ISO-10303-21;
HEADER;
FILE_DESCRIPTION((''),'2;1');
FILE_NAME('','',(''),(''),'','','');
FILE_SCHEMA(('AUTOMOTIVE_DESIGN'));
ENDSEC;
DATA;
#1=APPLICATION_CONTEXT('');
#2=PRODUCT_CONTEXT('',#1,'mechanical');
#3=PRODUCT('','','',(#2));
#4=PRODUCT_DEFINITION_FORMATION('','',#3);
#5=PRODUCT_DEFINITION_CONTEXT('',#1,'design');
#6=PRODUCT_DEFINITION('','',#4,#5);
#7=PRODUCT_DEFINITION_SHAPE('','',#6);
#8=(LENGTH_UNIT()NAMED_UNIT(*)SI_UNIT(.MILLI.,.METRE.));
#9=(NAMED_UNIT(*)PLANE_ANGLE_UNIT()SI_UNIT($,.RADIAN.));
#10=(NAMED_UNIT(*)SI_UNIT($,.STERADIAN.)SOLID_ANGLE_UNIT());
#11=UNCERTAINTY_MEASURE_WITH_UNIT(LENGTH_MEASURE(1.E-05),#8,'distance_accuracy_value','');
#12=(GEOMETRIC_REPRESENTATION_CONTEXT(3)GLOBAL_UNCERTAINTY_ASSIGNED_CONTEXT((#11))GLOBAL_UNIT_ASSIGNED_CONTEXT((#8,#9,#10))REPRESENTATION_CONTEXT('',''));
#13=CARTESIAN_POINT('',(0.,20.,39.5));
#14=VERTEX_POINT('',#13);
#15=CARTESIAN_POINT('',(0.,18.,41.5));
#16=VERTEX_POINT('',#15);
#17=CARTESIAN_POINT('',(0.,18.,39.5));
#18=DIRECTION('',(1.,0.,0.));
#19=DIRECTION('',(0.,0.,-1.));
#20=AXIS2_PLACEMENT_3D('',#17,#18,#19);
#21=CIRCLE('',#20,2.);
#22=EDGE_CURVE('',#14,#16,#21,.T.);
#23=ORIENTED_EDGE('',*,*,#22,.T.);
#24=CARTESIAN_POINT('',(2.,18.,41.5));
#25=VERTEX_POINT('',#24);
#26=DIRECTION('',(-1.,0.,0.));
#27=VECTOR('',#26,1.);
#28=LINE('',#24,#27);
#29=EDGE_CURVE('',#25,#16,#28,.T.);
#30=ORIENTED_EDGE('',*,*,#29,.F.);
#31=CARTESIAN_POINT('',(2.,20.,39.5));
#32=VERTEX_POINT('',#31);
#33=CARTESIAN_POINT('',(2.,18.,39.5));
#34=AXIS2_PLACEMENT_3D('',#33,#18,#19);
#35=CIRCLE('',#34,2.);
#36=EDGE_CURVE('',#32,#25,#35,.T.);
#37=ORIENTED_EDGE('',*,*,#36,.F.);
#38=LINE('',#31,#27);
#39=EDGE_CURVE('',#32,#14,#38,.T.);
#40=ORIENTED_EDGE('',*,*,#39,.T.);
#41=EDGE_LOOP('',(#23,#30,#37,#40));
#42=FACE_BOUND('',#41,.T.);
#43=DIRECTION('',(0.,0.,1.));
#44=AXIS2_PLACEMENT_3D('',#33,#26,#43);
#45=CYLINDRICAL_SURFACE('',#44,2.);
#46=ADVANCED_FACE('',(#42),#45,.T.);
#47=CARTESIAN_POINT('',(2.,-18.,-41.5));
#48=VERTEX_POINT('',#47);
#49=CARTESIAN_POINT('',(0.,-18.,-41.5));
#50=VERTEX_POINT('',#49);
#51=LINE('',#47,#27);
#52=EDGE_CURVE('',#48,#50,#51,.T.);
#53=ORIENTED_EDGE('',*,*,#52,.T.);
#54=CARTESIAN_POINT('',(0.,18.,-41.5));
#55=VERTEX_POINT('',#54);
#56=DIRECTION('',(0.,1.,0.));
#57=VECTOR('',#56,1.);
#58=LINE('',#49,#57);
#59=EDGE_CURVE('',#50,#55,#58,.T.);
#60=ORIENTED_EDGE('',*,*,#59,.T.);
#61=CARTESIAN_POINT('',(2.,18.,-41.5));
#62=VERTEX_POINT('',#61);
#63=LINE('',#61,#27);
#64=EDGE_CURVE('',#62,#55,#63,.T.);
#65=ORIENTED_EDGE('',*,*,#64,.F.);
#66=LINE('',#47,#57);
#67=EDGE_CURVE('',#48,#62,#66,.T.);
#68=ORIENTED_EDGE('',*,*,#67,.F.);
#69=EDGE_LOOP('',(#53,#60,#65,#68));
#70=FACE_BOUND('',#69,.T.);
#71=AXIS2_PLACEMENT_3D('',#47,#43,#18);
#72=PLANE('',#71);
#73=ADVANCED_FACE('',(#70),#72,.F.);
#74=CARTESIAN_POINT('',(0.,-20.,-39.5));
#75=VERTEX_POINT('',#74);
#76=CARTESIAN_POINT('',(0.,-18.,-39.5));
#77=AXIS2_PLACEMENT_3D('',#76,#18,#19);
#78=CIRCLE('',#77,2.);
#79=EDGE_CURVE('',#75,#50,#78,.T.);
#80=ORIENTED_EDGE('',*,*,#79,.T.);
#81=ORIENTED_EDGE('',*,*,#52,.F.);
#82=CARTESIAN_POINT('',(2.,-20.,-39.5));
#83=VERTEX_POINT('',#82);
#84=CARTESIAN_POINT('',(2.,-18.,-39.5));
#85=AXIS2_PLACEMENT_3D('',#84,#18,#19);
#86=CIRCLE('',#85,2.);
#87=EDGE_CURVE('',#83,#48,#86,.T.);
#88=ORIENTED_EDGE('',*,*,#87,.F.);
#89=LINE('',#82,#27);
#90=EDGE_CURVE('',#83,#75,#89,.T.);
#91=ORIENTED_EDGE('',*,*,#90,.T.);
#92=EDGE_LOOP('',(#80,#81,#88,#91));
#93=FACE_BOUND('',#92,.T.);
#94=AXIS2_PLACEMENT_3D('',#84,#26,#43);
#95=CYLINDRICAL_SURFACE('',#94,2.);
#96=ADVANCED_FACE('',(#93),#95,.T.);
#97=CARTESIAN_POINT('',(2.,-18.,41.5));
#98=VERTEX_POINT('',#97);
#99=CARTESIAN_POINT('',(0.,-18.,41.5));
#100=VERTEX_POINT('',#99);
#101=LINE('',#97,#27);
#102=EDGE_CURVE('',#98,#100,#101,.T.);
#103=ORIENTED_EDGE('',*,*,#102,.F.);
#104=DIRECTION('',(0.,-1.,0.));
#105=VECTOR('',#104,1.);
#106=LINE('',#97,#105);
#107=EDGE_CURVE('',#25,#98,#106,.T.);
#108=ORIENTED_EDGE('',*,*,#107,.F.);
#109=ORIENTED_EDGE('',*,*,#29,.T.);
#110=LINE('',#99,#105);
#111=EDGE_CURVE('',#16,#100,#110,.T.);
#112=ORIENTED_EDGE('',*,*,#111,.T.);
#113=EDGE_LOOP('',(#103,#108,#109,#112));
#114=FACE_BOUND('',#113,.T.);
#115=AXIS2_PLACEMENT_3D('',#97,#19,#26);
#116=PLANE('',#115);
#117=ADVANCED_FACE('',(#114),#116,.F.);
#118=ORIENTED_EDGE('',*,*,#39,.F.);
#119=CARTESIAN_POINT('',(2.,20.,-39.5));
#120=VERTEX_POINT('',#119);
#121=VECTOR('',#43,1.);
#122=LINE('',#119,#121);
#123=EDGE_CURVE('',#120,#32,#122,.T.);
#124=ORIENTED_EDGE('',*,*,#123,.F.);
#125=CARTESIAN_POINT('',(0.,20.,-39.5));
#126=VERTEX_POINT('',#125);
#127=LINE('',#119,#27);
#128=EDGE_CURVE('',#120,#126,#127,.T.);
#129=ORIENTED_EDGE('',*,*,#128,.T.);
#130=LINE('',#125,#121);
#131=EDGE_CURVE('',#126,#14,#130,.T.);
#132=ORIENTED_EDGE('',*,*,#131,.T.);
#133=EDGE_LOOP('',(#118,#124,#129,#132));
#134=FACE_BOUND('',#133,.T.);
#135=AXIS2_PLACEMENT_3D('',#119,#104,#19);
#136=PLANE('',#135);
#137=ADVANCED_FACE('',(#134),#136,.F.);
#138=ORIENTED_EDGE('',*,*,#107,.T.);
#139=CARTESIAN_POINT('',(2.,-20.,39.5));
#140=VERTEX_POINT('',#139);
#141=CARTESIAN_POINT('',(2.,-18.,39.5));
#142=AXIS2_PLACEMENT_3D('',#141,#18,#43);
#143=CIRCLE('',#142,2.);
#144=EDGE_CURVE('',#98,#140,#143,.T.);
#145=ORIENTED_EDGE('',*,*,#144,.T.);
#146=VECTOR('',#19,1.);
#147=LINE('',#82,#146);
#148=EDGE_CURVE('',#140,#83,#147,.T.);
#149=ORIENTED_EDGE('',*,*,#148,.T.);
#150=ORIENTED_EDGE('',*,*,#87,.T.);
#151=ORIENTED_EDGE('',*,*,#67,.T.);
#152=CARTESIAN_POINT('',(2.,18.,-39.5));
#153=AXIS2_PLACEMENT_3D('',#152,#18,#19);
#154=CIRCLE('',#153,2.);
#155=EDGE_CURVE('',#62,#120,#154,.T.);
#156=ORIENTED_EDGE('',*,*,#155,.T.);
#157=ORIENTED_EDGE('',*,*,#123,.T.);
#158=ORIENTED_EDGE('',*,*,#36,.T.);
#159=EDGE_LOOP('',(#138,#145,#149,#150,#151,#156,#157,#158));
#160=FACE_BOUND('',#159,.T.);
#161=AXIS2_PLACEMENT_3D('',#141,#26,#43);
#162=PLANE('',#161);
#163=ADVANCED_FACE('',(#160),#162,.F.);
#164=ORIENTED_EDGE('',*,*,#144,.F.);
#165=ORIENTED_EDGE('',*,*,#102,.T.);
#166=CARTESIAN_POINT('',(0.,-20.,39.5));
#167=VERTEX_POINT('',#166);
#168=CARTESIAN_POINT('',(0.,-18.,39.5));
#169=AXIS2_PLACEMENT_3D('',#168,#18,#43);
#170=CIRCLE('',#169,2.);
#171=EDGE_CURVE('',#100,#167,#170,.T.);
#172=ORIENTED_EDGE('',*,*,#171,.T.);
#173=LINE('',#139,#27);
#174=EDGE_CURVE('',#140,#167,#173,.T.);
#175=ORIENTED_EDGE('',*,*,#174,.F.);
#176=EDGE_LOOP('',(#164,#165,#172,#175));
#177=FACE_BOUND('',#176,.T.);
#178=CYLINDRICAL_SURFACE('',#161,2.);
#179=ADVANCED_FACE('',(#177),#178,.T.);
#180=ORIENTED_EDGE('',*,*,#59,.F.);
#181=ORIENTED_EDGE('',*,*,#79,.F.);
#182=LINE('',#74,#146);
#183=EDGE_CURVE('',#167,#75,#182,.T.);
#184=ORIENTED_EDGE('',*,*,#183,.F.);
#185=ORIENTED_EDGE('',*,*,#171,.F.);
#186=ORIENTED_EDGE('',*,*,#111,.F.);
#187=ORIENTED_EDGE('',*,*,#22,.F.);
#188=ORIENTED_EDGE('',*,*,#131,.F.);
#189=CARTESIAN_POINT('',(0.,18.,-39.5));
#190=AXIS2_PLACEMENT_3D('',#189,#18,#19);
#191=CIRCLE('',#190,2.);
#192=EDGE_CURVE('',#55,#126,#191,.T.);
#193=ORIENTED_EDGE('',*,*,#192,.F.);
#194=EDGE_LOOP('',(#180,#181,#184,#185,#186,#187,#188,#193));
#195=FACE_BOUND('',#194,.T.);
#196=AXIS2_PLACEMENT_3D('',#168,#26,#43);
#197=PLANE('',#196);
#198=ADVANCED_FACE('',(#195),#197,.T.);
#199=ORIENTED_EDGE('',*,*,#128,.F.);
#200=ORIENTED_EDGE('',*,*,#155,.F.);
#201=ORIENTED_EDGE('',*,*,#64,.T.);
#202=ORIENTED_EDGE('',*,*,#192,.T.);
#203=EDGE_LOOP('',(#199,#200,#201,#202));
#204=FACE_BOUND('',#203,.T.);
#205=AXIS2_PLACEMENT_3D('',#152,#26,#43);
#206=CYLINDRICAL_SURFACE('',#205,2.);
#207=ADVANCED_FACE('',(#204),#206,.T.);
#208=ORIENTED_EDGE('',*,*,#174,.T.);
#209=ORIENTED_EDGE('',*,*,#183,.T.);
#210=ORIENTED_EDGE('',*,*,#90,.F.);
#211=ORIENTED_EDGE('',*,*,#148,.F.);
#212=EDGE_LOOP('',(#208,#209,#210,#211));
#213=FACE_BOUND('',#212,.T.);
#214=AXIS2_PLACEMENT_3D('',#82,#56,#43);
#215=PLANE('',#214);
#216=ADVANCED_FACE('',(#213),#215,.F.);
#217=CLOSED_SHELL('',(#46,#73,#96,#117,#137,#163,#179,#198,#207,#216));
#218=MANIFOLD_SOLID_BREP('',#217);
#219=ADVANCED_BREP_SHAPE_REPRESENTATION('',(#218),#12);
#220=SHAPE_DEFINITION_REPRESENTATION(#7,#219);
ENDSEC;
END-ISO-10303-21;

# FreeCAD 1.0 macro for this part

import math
import FreeCAD as App
import Part
import Sketcher

V = App.Vector
Q = App.Units.Quantity

doc = App.newDocument("Part")
params = doc.addObject("Spreadsheet::Sheet", "Params")
for row, (alias, value) in enumerate([
    ("sketch1_radius", "2 mm"),
    ("sketch1_width", "36 mm"),
    ("sketch1_height", "79 mm"),
    ("pad1_length", "2 mm"),
], start=1):
    params.set(f"A{row}", alias)
    params.set(f"B{row}", "=" + value)
    params.setAlias(f"B{row}", alias)

body = doc.addObject("PartDesign::Body", "Body")

# Sketch on YZ plane
sketch1 = doc.addObject("Sketcher::SketchObject", "Sketch")
body.addObject(sketch1)
sketch1.AttachmentSupport = (doc.YZ_Plane, [""])
sketch1.MapMode = "FlatFace"
sketch1.addGeometry(Part.LineSegment(V(-20, 39.5, 0), V(-20, -39.5, 0)), False)
sketch1.addGeometry(Part.ArcOfCircle(Part.Circle(V(-18, -39.5, 0), V(0, 0, 1), 2), math.radians(-180), math.radians(-90)), False)
sketch1.addGeometry(Part.LineSegment(V(-18, -41.5, 0), V(18, -41.5, 0)), False)
sketch1.addGeometry(Part.ArcOfCircle(Part.Circle(V(18, -39.5, 0), V(0, 0, 1), 2), math.radians(-90), math.radians(0)), False)
sketch1.addGeometry(Part.LineSegment(V(20, -39.5, 0), V(20, 39.5, 0)), False)
sketch1.addGeometry(Part.ArcOfCircle(Part.Circle(V(18, 39.5, 0), V(0, 0, 1), 2), math.radians(0), math.radians(90)), False)
sketch1.addGeometry(Part.LineSegment(V(18, 41.5, 0), V(-18, 41.5, 0)), False)
sketch1.addGeometry(Part.ArcOfCircle(Part.Circle(V(-18, 39.5, 0), V(0, 0, 1), 2), math.radians(90), math.radians(180)), False)
sketch1.addConstraint(Sketcher.Constraint("Tangent", 0, 2, 1, 1))
sketch1.addConstraint(Sketcher.Constraint("Tangent", 1, 2, 2, 1))
sketch1.addConstraint(Sketcher.Constraint("Tangent", 2, 2, 3, 1))
sketch1.addConstraint(Sketcher.Constraint("Tangent", 3, 2, 4, 1))
sketch1.addConstraint(Sketcher.Constraint("Tangent", 4, 2, 5, 1))
sketch1.addConstraint(Sketcher.Constraint("Tangent", 5, 2, 6, 1))
sketch1.addConstraint(Sketcher.Constraint("Tangent", 6, 2, 7, 1))
sketch1.addConstraint(Sketcher.Constraint("Tangent", 7, 2, 0, 1))
sketch1.addConstraint(Sketcher.Constraint("Vertical", 0))
sketch1.addConstraint(Sketcher.Constraint("Horizontal", 2))
sketch1.addConstraint(Sketcher.Constraint("Vertical", 4))
sketch1.addConstraint(Sketcher.Constraint("Horizontal", 6))
sketch1.addConstraint(Sketcher.Constraint("Equal", 1, 3))
sketch1.addConstraint(Sketcher.Constraint("Equal", 3, 5))
sketch1.addConstraint(Sketcher.Constraint("Equal", 5, 7))
sketch1.addConstraint(Sketcher.Constraint("Symmetric", 1, 3, 5, 3, -1, 1))
sketch1.addConstraint(Sketcher.Constraint("Radius", 1, Q("2 mm")))
sketch1.addConstraint(Sketcher.Constraint("DistanceX", 2, 1, 2, 2, Q("36 mm")))
sketch1.addConstraint(Sketcher.Constraint("DistanceY", 0, 2, 0, 1, Q("79 mm")))
sketch1.setExpression("Constraints[16]", "Params.sketch1_radius")
sketch1.setExpression("Constraints[17]", "Params.sketch1_width")
sketch1.setExpression("Constraints[18]", "Params.sketch1_height")
pad1 = doc.addObject("PartDesign::Pad", "Pad")
body.addObject(pad1)
pad1.Profile = sketch1
pad1.setExpression("Length", "Params.pad1_length")

doc.recompute()
